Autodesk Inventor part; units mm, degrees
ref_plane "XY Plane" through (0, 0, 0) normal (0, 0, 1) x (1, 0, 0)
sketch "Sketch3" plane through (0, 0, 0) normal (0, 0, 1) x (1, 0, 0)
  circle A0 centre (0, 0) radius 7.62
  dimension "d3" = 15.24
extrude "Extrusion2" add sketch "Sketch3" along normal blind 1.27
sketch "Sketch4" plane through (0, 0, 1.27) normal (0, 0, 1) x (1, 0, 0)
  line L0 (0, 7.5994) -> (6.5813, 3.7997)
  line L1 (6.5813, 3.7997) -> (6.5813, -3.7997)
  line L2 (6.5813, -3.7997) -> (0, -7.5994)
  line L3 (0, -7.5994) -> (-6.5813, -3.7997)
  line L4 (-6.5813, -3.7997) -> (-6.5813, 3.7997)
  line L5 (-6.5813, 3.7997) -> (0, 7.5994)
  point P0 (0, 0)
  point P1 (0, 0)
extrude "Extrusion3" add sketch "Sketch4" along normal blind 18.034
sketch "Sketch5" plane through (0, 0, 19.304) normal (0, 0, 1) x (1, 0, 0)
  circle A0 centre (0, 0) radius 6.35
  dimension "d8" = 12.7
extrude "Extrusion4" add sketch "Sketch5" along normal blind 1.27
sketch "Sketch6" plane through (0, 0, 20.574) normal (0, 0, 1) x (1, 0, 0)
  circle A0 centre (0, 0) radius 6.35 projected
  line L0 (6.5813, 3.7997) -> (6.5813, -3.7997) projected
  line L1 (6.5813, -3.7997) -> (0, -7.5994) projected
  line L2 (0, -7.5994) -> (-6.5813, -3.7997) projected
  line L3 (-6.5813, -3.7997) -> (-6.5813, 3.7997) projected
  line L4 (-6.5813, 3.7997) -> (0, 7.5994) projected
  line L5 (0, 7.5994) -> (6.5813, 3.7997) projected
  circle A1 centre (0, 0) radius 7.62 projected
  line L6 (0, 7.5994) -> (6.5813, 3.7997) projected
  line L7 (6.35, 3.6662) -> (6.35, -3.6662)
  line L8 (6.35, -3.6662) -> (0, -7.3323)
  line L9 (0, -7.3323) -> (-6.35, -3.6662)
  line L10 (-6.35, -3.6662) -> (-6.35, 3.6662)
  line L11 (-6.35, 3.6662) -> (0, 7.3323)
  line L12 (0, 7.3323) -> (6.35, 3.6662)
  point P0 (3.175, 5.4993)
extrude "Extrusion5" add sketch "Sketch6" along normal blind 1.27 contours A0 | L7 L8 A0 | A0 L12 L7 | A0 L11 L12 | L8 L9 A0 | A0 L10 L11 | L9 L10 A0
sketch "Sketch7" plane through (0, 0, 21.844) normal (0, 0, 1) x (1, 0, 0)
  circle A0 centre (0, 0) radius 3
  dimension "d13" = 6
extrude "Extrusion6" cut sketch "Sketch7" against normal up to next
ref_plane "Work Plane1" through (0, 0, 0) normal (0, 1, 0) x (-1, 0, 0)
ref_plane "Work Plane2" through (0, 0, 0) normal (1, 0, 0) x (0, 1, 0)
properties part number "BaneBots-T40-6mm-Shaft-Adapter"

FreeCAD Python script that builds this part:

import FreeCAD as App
import Part
import Sketcher
Q = App.Units.Quantity

doc = App.newDocument("Part")
body = doc.addObject("PartDesign::Body", "Body")

# Sketch on XY plane
sketch1 = body.newObject("Sketcher::SketchObject", "Sketch")
sketch1.AttachmentSupport = (doc.getObject("XY_Plane"), [""])
sketch1.MapMode = "FlatFace"
sketch1.addGeometry(Part.Circle(App.Vector(0, 0, 0), App.Vector(0, 0, 1), 7.62), False)
sketch1.addConstraint([
    Sketcher.Constraint("Coincident", 0, 3, -1, 1),
    Sketcher.Constraint("Diameter", 0, Q("0.6 in")),
])
pad1 = body.newObject("PartDesign::Pad", "Pad")
pad1.Profile = sketch1
pad1.Length = Q("0.05 in")

# Sketch on XY plane
sketch2 = body.newObject("Sketcher::SketchObject", "Sketch001")
sketch2.AttachmentSupport = (doc.getObject("XY_Plane"), [""])
sketch2.MapMode = "FlatFace"
sketch2.AttachmentOffset = App.Placement(App.Vector(0, 0, 0.05 * 25.4), App.Rotation())
sketch2.addGeometry([
    Part.LineSegment(App.Vector(6.5813, 3.7997, 0), App.Vector(0, 7.5994, 0)),  # 0
    Part.LineSegment(App.Vector(0, 7.5994, 0), App.Vector(-6.5813, 3.7997, 0)),  # 1
    Part.LineSegment(App.Vector(-6.5813, 3.7997, 0), App.Vector(-6.5813, -3.7997, 0)),  # 2
    Part.LineSegment(App.Vector(-6.5813, -3.7997, 0), App.Vector(0, -7.5994, 0)),  # 3
    Part.LineSegment(App.Vector(0, -7.5994, 0), App.Vector(6.5813, -3.7997, 0)),  # 4
    Part.LineSegment(App.Vector(6.5813, -3.7997, 0), App.Vector(6.5813, 3.7997, 0)),  # 5
], False)
sketch2.addConstraint([
    Sketcher.Constraint("Coincident", 0, 2, 1, 1),
    Sketcher.Constraint("Coincident", 1, 2, 2, 1),
    Sketcher.Constraint("Coincident", 2, 2, 3, 1),
    Sketcher.Constraint("Coincident", 3, 2, 4, 1),
    Sketcher.Constraint("Coincident", 4, 2, 5, 1),
    Sketcher.Constraint("Coincident", 5, 2, 0, 1),
    Sketcher.Constraint("Vertical", 2),
    Sketcher.Constraint("Vertical", 5),
    Sketcher.Constraint("Symmetric", 0, 2, 3, 2, -1, 1),
    Sketcher.Constraint("Symmetric", 1, 2, 4, 2, -1, 1),
    Sketcher.Constraint("PointOnObject", 0, 2, -2),
    Sketcher.Constraint("Parallel", 0, 3),
    Sketcher.Constraint("Horizontal", 2, 2, 4, 2),
    Sketcher.Constraint("Angle", 0, Q("150 deg")),
    Sketcher.Constraint("DistanceY", 2, 2, 2, 1, Q("0.2992 in")),
    Sketcher.Constraint("Distance", 0, Q("0.2992 in")),
])
pad2 = body.newObject("PartDesign::Pad", "Pad001")
pad2.Profile = sketch2
pad2.Length = Q("0.71 in")

# Sketch on XY plane
sketch3 = body.newObject("Sketcher::SketchObject", "Sketch002")
sketch3.AttachmentSupport = (doc.getObject("XY_Plane"), [""])
sketch3.MapMode = "FlatFace"
sketch3.AttachmentOffset = App.Placement(App.Vector(0, 0, 0.76 * 25.4), App.Rotation())
sketch3.addGeometry(Part.Circle(App.Vector(0, 0, 0), App.Vector(0, 0, 1), 6.35), False)
sketch3.addConstraint([
    Sketcher.Constraint("Coincident", 0, 3, -1, 1),
    Sketcher.Constraint("Diameter", 0, Q("0.5 in")),
])
pad3 = body.newObject("PartDesign::Pad", "Pad002")
pad3.Profile = sketch3
pad3.Length = Q("0.05 in")

# Sketch on XY plane
sketch4 = body.newObject("Sketcher::SketchObject", "Sketch003")
sketch4.AttachmentSupport = (doc.getObject("XY_Plane"), [""])
sketch4.MapMode = "FlatFace"
sketch4.AttachmentOffset = App.Placement(App.Vector(0, 0, 0.81 * 25.4), App.Rotation())
sketch4.addGeometry([
    Part.LineSegment(App.Vector(6.35, -3.6662, 0), App.Vector(6.35, 3.6662, 0)),  # 0
    Part.LineSegment(App.Vector(6.35, 3.6662, 0), App.Vector(0, 7.3323, 0)),  # 1
    Part.LineSegment(App.Vector(0, 7.3323, 0), App.Vector(-6.35, 3.6662, 0)),  # 2
    Part.LineSegment(App.Vector(-6.35, 3.6662, 0), App.Vector(-6.35, -3.6662, 0)),  # 3
    Part.LineSegment(App.Vector(-6.35, -3.6662, 0), App.Vector(0, -7.3323, 0)),  # 4
    Part.LineSegment(App.Vector(0, -7.3323, 0), App.Vector(6.35, -3.6662, 0)),  # 5
], False)
sketch4.addConstraint([
    Sketcher.Constraint("Coincident", 0, 2, 1, 1),
    Sketcher.Constraint("Coincident", 1, 2, 2, 1),
    Sketcher.Constraint("Coincident", 2, 2, 3, 1),
    Sketcher.Constraint("Coincident", 3, 2, 4, 1),
    Sketcher.Constraint("Coincident", 4, 2, 5, 1),
    Sketcher.Constraint("Coincident", 5, 2, 0, 1),
    Sketcher.Constraint("Vertical", 0),
    Sketcher.Constraint("Vertical", 3),
    Sketcher.Constraint("Symmetric", 0, 2, 3, 2, -1, 1),
    Sketcher.Constraint("Symmetric", 1, 2, 4, 2, -1, 1),
    Sketcher.Constraint("PointOnObject", 1, 2, -2),
    Sketcher.Constraint("Parallel", 2, 5),
    Sketcher.Constraint("Horizontal", 0, 2, 2, 2),
    Sketcher.Constraint("Angle", 1, Q("150.0005 deg")),
    Sketcher.Constraint("DistanceX", 2, 2, 0, 2, Q("0.5 in")),
    Sketcher.Constraint("DistanceY", 3, 2, 1, 2, Q("0.433 in")),
])
pad4 = body.newObject("PartDesign::Pad", "Pad003")
pad4.Profile = sketch4
pad4.Length = Q("0.05 in")

# Sketch on XY plane
sketch5 = body.newObject("Sketcher::SketchObject", "Sketch004")
sketch5.AttachmentSupport = (doc.getObject("XY_Plane"), [""])
sketch5.MapMode = "FlatFace"
sketch5.AttachmentOffset = App.Placement(App.Vector(0, 0, 0.86 * 25.4), App.Rotation())
sketch5.addGeometry(Part.Circle(App.Vector(0, 0, 0), App.Vector(0, 0, 1), 3), False)
sketch5.addConstraint([
    Sketcher.Constraint("Coincident", 0, 3, -1, 1),
    Sketcher.Constraint("Diameter", 0, Q("6 mm")),
])
pocket1 = body.newObject("PartDesign::Pocket", "Pocket")
pocket1.Profile = sketch5
pocket1.Type = "UpToFirst"

doc.recompute()
